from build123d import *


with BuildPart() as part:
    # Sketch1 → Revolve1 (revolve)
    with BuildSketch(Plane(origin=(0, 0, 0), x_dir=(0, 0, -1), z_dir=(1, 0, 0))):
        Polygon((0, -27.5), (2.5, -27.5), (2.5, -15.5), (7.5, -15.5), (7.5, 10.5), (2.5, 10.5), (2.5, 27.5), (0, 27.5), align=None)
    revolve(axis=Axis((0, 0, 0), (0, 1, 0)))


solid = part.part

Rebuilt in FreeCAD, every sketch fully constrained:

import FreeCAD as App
import Part
import Sketcher


def add_polygon(sketch, points):
    """Adds a closed chain of lines whose ends are joined by coincident constraints."""
    first, n = sketch.GeometryCount, len(points)
    for a, b in zip(points, points[1:] + points[:1]):
        sketch.addGeometry(Part.LineSegment(App.Vector(*a, 0), App.Vector(*b, 0)), False)
    for i in range(n):
        sketch.addConstraint(Sketcher.Constraint("Coincident", first + i, 2, first + (i + 1) % n, 1))

doc = App.newDocument("Part")
body = doc.addObject("PartDesign::Body", "Body")

# Sketch on YZ plane
sketch1 = body.newObject("Sketcher::SketchObject", "Sketch")
sketch1.AttachmentSupport = (doc.getObject("YZ_Plane"), [""])
sketch1.MapMode = "FlatFace"
add_polygon(sketch1, [(-27.5, 0), (-27.5, -2.5), (-15.5, -2.5), (-15.5, -7.5), (10.5, -7.5), (10.5, -2.5), (27.5, -2.5), (27.5, 0)])  # lines 0-7
sketch1.addConstraint([
    Sketcher.Constraint("Vertical", 0),
    Sketcher.Constraint("Horizontal", 1),
    Sketcher.Constraint("Vertical", 2),
    Sketcher.Constraint("Horizontal", 3),
    Sketcher.Constraint("Vertical", 4),
    Sketcher.Constraint("Horizontal", 5),
    Sketcher.Constraint("Vertical", 6),
    Sketcher.Constraint("Horizontal", 7),
    Sketcher.Constraint("Symmetric", 6, 2, 7, 2, -1, 1),
    Sketcher.Constraint("Horizontal", 1, 2, 4, 2),
    Sketcher.Constraint("DistanceX", 1, 1, 1, 2, 12.0),
    Sketcher.Constraint("DistanceX", 3, 1, 3, 2, 26.0),
    Sketcher.Constraint("DistanceX", 5, 1, 5, 2, 17.0),
    Sketcher.Constraint("DistanceY", 2, 2, 2, 1, 5.0),
    Sketcher.Constraint("DistanceY", 0, 2, 0, 1, 2.5),
])
revolution = body.newObject("PartDesign::Revolution", "Revolution")
revolution.Profile = sketch1
revolution.ReferenceAxis = (sketch1, ["H_Axis"])
revolution.Angle = 360

doc.recompute()
